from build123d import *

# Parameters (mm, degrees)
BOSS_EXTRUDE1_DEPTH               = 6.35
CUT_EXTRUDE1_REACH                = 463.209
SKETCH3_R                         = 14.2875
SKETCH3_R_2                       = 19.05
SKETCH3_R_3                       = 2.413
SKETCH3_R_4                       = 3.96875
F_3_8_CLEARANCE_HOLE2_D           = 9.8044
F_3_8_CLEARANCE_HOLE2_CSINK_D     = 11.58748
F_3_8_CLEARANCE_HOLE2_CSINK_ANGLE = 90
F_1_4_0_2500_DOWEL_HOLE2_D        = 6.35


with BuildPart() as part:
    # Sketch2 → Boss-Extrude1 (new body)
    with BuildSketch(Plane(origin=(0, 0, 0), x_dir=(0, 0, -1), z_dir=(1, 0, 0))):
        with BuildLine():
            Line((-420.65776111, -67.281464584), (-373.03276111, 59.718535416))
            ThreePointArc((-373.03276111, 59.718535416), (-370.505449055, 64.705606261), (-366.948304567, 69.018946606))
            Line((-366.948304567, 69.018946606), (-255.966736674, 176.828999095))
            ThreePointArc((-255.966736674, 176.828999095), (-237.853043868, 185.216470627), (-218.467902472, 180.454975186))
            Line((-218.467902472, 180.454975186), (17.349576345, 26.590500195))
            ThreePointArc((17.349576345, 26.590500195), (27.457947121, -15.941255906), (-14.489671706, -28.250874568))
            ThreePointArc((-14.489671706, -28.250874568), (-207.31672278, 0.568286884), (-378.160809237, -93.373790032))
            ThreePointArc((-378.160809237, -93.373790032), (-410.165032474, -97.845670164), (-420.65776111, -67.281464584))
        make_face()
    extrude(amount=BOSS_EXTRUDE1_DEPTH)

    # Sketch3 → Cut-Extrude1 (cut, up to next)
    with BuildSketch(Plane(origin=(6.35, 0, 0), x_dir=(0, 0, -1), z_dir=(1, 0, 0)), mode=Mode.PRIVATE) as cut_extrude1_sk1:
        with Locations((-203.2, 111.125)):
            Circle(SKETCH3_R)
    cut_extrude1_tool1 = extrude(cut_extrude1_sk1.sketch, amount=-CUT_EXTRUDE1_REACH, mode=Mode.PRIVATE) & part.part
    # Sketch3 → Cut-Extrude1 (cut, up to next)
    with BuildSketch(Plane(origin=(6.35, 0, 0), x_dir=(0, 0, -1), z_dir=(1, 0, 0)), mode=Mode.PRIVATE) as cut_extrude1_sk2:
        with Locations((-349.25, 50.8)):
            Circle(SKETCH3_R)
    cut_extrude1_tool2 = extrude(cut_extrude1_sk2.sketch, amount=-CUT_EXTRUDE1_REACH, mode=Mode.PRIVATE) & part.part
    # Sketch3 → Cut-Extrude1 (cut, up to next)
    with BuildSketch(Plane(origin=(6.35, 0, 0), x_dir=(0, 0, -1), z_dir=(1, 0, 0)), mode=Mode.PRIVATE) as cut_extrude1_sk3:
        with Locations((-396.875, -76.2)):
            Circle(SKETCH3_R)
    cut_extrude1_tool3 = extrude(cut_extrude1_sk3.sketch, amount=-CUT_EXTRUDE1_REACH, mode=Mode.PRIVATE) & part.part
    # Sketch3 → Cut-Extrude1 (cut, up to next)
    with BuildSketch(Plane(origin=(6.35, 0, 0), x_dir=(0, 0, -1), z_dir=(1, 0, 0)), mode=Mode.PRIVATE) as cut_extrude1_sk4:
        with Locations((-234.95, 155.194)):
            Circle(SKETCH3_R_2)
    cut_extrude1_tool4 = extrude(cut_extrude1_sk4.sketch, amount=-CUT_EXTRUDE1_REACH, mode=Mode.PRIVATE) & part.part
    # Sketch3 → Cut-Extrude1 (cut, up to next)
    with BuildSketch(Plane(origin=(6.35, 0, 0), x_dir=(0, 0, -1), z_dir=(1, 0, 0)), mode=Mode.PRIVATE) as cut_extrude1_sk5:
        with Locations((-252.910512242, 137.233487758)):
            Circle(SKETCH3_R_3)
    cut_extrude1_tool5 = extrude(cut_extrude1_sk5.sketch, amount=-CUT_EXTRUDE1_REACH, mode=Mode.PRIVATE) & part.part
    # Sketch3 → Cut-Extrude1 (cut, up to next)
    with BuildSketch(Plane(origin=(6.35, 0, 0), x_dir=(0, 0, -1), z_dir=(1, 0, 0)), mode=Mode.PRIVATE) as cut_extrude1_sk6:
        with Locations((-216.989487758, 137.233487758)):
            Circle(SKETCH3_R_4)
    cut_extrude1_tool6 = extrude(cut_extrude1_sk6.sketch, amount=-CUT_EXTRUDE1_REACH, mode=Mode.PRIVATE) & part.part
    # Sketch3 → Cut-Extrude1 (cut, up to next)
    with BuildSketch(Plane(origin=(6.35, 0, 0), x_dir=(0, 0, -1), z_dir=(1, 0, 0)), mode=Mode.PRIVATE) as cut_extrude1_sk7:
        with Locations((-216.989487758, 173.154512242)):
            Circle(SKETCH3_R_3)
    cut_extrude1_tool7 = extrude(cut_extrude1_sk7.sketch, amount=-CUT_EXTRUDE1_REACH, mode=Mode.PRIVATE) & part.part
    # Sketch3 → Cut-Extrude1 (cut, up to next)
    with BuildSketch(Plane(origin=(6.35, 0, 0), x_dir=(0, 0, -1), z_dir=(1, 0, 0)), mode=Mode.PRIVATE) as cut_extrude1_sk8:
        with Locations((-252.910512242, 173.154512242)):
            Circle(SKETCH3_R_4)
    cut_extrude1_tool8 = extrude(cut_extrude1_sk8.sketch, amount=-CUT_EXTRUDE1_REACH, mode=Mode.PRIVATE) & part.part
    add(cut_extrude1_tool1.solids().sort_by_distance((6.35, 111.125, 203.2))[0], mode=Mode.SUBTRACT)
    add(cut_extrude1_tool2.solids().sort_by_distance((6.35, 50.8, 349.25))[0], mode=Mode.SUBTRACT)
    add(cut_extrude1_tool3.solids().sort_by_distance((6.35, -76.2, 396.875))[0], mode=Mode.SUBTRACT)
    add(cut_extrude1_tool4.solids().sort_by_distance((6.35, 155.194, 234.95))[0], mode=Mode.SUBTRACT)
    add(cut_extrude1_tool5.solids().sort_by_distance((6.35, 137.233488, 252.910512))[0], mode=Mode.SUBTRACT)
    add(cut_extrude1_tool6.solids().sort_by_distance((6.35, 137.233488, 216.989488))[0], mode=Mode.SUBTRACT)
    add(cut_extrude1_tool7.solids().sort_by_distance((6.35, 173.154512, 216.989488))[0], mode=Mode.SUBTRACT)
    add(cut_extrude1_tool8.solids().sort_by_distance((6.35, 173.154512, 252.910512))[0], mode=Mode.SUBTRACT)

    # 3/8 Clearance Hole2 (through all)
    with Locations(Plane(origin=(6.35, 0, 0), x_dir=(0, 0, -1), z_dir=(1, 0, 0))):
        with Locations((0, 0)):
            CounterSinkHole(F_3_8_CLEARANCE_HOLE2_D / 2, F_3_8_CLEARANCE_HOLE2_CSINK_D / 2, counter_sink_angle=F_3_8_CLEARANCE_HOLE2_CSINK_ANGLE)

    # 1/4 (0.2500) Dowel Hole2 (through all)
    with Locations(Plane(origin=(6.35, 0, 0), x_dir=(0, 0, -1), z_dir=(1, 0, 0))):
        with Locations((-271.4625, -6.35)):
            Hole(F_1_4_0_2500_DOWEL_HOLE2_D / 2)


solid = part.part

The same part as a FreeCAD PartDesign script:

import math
import FreeCAD as App
import Part
import Sketcher
from FreeCAD import Vector
Q = App.Units.Quantity

doc = App.newDocument("Part")
params = doc.addObject("Spreadsheet::Sheet", "Params")
for row, (alias, value) in enumerate([
    ("sketch1_radius", "1 in"),
    ("sketch1_radius2", "12 in"),
    ("sketch1_radius3", "1.25 in"),
    ("sketch1_radius4", "1.1875 in"),
    ("pad1_length", "0.25 in"),
    ("sketch2_diameter", "1.125 in"),
    ("sketch3_diameter", "1.125 in"),
    ("sketch4_diameter", "1.125 in"),
    ("sketch5_diameter", "1.5 in"),
    ("sketch6_diameter", "0.19 in"),
    ("sketch7_diameter", "0.3125 in"),
    ("sketch8_diameter", "0.19 in"),
    ("sketch9_diameter", "0.3125 in"),
    ("sketch10_diameter", "0.386 in"),
    ("hole_diameter", "0.386 in"),
    ("hole_csink_diameter", "0.4562 in"),
    ("sketch11_diameter", "0.25 in"),
    ("hole2_diameter", "0.25 in"),
], start=1):
    params.set(f"A{row}", alias)
    params.set(f"B{row}", "=" + value)
    params.setAlias(f"B{row}", alias)

body = doc.addObject("PartDesign::Body", "Body")

# Sketch on YZ plane
sketch1 = body.newObject("Sketcher::SketchObject", "Sketch")
sketch1.AttachmentSupport = (doc.getObject("YZ_Plane"), [""])
sketch1.MapMode = "FlatFace"
sketch1.addGeometry([
    Part.LineSegment(Vector(60, 373, 0), Vector(-67, 421, 0)),  # 0
    Part.ArcOfCircle(Part.Circle(Vector(-76, 397, 0), Vector(0, 0, 1), 25), math.radians(69), math.radians(227)),  # 1
    Part.ArcOfCircle(Part.Circle(Vector(-299, 154, 0), Vector(0, 0, 1), 305), math.radians(-27), math.radians(47)),  # 2
    Part.ArcOfCircle(Part.Circle(Vector(0, 0, 0), Vector(0, 0, 1), 32), math.radians(153), math.radians(327)),  # 3
    Part.LineSegment(Vector(27, -17, 0), Vector(180, 218, 0)),  # 4
    Part.ArcOfCircle(Part.Circle(Vector(155, 235, 0), Vector(0, 0, 1), 30), math.radians(-33), math.radians(44)),  # 5
    Part.LineSegment(Vector(177, 256, 0), Vector(69, 367, 0)),  # 6
    Part.ArcOfCircle(Part.Circle(Vector(51, 349, 0), Vector(0, 0, 1), 25), math.radians(44), math.radians(69)),  # 7
], False)
sketch1.addConstraint([
    Sketcher.Constraint("Tangent", 0, 2, 1, 1),
    Sketcher.Constraint("Tangent", 1, 2, 2, 2),
    Sketcher.Constraint("Tangent", 2, 1, 3, 1),
    Sketcher.Constraint("Tangent", 3, 2, 4, 1),
    Sketcher.Constraint("Tangent", 4, 2, 5, 1),
    Sketcher.Constraint("Tangent", 5, 2, 6, 1),
    Sketcher.Constraint("Tangent", 6, 2, 7, 1),
    Sketcher.Constraint("Tangent", 7, 2, 0, 1),
    Sketcher.Constraint("Coincident", 3, 3, -1, 1),
    Sketcher.Constraint("Equal", 1, 7),
    Sketcher.Constraint("Radius", 1, Q("1 in")),
    Sketcher.Constraint("Radius", 2, Q("12 in")),
    Sketcher.Constraint("Radius", 3, Q("1.25 in")),
    Sketcher.Constraint("DistanceX", 1, 3, -1, 1, Q("3 in")),
    Sketcher.Constraint("DistanceX", -1, 1, 7, 3, Q("2 in")),
    Sketcher.Constraint("Radius", 5, Q("1.1875 in")),
    Sketcher.Constraint("DistanceY", 5, 3, 7, 3, Q("4.5 in")),
    Sketcher.Constraint("DistanceX", -1, 1, 5, 3, Q("6.11 in")),
    Sketcher.Constraint("DistanceY", -1, 1, 5, 3, Q("9.25 in")),
    Sketcher.Constraint("DistanceY", -1, 1, 1, 3, Q("15.625 in")),
])
sketch1.setExpression("Constraints[10]", "Params.sketch1_radius")
sketch1.setExpression("Constraints[11]", "Params.sketch1_radius2")
sketch1.setExpression("Constraints[12]", "Params.sketch1_radius3")
sketch1.setExpression("Constraints[15]", "Params.sketch1_radius4")
pad1 = body.newObject("PartDesign::Pad", "Pad")
pad1.Profile = sketch1
pad1.setExpression("Length", "Params.pad1_length")

# Sketch on YZ plane
sketch2 = body.newObject("Sketcher::SketchObject", "Sketch001")
sketch2.AttachmentSupport = (doc.getObject("YZ_Plane"), [""])
sketch2.MapMode = "FlatFace"
sketch2.AttachmentOffset = App.Placement(Vector(0, 0, 0.25 * 25.4), App.Rotation())
sketch2.addGeometry(Part.Circle(Vector(111, 203, 0), Vector(0, 0, 1), 14), False)
sketch2.addConstraint([
    Sketcher.Constraint("Diameter", 0, Q("1.125 in")),
    Sketcher.Constraint("DistanceY", -1, 1, 0, 3, Q("8 in")),
    Sketcher.Constraint("DistanceX", -1, 1, 0, 3, Q("4.375 in")),
])
sketch2.setExpression("Constraints[0]", "Params.sketch2_diameter")
pocket1 = body.newObject("PartDesign::Pocket", "Pocket")
pocket1.Profile = sketch2
pocket1.Type = "UpToFirst"

# Sketch on YZ plane
sketch3 = body.newObject("Sketcher::SketchObject", "Sketch002")
sketch3.AttachmentSupport = (doc.getObject("YZ_Plane"), [""])
sketch3.MapMode = "FlatFace"
sketch3.AttachmentOffset = App.Placement(Vector(0, 0, 0.25 * 25.4), App.Rotation())
sketch3.addGeometry(Part.Circle(Vector(51, 349, 0), Vector(0, 0, 1), 14), False)
sketch3.addConstraint([
    Sketcher.Constraint("Diameter", 0, Q("1.125 in")),
    Sketcher.Constraint("DistanceX", -1, 1, 0, 3, Q("2 in")),
    Sketcher.Constraint("DistanceY", -1, 1, 0, 3, Q("13.75 in")),
])
sketch3.setExpression("Constraints[0]", "Params.sketch3_diameter")
pocket2 = body.newObject("PartDesign::Pocket", "Pocket001")
pocket2.Profile = sketch3
pocket2.Type = "UpToFirst"

# Sketch on YZ plane
sketch4 = body.newObject("Sketcher::SketchObject", "Sketch003")
sketch4.AttachmentSupport = (doc.getObject("YZ_Plane"), [""])
sketch4.MapMode = "FlatFace"
sketch4.AttachmentOffset = App.Placement(Vector(0, 0, 0.25 * 25.4), App.Rotation())
sketch4.addGeometry(Part.Circle(Vector(-76, 397, 0), Vector(0, 0, 1), 14), False)
sketch4.addConstraint([
    Sketcher.Constraint("Diameter", 0, Q("1.125 in")),
    Sketcher.Constraint("DistanceX", 0, 3, -1, 1, Q("3 in")),
    Sketcher.Constraint("DistanceY", -1, 1, 0, 3, Q("15.625 in")),
])
sketch4.setExpression("Constraints[0]", "Params.sketch4_diameter")
pocket3 = body.newObject("PartDesign::Pocket", "Pocket002")
pocket3.Profile = sketch4
pocket3.Type = "UpToFirst"

# Sketch on YZ plane
sketch5 = body.newObject("Sketcher::SketchObject", "Sketch004")
sketch5.AttachmentSupport = (doc.getObject("YZ_Plane"), [""])
sketch5.MapMode = "FlatFace"
sketch5.AttachmentOffset = App.Placement(Vector(0, 0, 0.25 * 25.4), App.Rotation())
sketch5.addGeometry(Part.Circle(Vector(155, 235, 0), Vector(0, 0, 1), 19), False)
sketch5.addConstraint([
    Sketcher.Constraint("Diameter", 0, Q("1.5 in")),
    Sketcher.Constraint("DistanceX", -1, 1, 0, 3, Q("6.11 in")),
    Sketcher.Constraint("DistanceY", -1, 1, 0, 3, Q("9.25 in")),
])
sketch5.setExpression("Constraints[0]", "Params.sketch5_diameter")
pocket4 = body.newObject("PartDesign::Pocket", "Pocket003")
pocket4.Profile = sketch5
pocket4.Type = "UpToFirst"

# Sketch on YZ plane
sketch6 = body.newObject("Sketcher::SketchObject", "Sketch005")
sketch6.AttachmentSupport = (doc.getObject("YZ_Plane"), [""])
sketch6.MapMode = "FlatFace"
sketch6.AttachmentOffset = App.Placement(Vector(0, 0, 0.25 * 25.4), App.Rotation())
sketch6.addGeometry(Part.Circle(Vector(137.2, 252.9, 0), Vector(0, 0, 1), 2.4), False)
sketch6.addConstraint([
    Sketcher.Constraint("Diameter", 0, Q("0.19 in")),
    Sketcher.Constraint("DistanceX", -1, 1, 0, 3, Q("137.233488 mm")),
    Sketcher.Constraint("DistanceY", -1, 1, 0, 3, Q("252.910512 mm")),
])
sketch6.setExpression("Constraints[0]", "Params.sketch6_diameter")
pocket5 = body.newObject("PartDesign::Pocket", "Pocket004")
pocket5.Profile = sketch6
pocket5.Type = "UpToFirst"

# Sketch on YZ plane
sketch7 = body.newObject("Sketcher::SketchObject", "Sketch006")
sketch7.AttachmentSupport = (doc.getObject("YZ_Plane"), [""])
sketch7.MapMode = "FlatFace"
sketch7.AttachmentOffset = App.Placement(Vector(0, 0, 0.25 * 25.4), App.Rotation())
sketch7.addGeometry(Part.Circle(Vector(137.2, 217, 0), Vector(0, 0, 1), 4), False)
sketch7.addConstraint([
    Sketcher.Constraint("Diameter", 0, Q("0.3125 in")),
    Sketcher.Constraint("DistanceX", -1, 1, 0, 3, Q("137.233488 mm")),
    Sketcher.Constraint("DistanceY", -1, 1, 0, 3, Q("216.989488 mm")),
])
sketch7.setExpression("Constraints[0]", "Params.sketch7_diameter")
pocket6 = body.newObject("PartDesign::Pocket", "Pocket005")
pocket6.Profile = sketch7
pocket6.Type = "UpToFirst"

# Sketch on YZ plane
sketch8 = body.newObject("Sketcher::SketchObject", "Sketch007")
sketch8.AttachmentSupport = (doc.getObject("YZ_Plane"), [""])
sketch8.MapMode = "FlatFace"
sketch8.AttachmentOffset = App.Placement(Vector(0, 0, 0.25 * 25.4), App.Rotation())
sketch8.addGeometry(Part.Circle(Vector(173.2, 217, 0), Vector(0, 0, 1), 2.4), False)
sketch8.addConstraint([
    Sketcher.Constraint("Diameter", 0, Q("0.19 in")),
    Sketcher.Constraint("DistanceX", -1, 1, 0, 3, Q("173.154512 mm")),
    Sketcher.Constraint("DistanceY", -1, 1, 0, 3, Q("216.989488 mm")),
])
sketch8.setExpression("Constraints[0]", "Params.sketch8_diameter")
pocket7 = body.newObject("PartDesign::Pocket", "Pocket006")
pocket7.Profile = sketch8
pocket7.Type = "UpToFirst"

# Sketch on YZ plane
sketch9 = body.newObject("Sketcher::SketchObject", "Sketch008")
sketch9.AttachmentSupport = (doc.getObject("YZ_Plane"), [""])
sketch9.MapMode = "FlatFace"
sketch9.AttachmentOffset = App.Placement(Vector(0, 0, 0.25 * 25.4), App.Rotation())
sketch9.addGeometry(Part.Circle(Vector(173.2, 252.9, 0), Vector(0, 0, 1), 4), False)
sketch9.addConstraint([
    Sketcher.Constraint("Diameter", 0, Q("0.3125 in")),
    Sketcher.Constraint("DistanceX", -1, 1, 0, 3, Q("173.154512 mm")),
    Sketcher.Constraint("DistanceY", -1, 1, 0, 3, Q("252.910512 mm")),
])
sketch9.setExpression("Constraints[0]", "Params.sketch9_diameter")
pocket8 = body.newObject("PartDesign::Pocket", "Pocket007")
pocket8.Profile = sketch9
pocket8.Type = "UpToFirst"

# Sketch on YZ plane
sketch10 = body.newObject("Sketcher::SketchObject", "Sketch009")
sketch10.AttachmentSupport = (doc.getObject("YZ_Plane"), [""])
sketch10.MapMode = "FlatFace"
sketch10.AttachmentOffset = App.Placement(Vector(0, 0, 0.25 * 25.4), App.Rotation())
sketch10.addGeometry(Part.Circle(Vector(0, 0, 0), Vector(0, 0, 1), 4.9), False)
sketch10.addConstraint([
    Sketcher.Constraint("Coincident", 0, 3, -1, 1),
    Sketcher.Constraint("Diameter", 0, Q("0.386 in")),
])
sketch10.setExpression("Constraints[1]", "Params.sketch10_diameter")
doc.recompute()
hole = body.newObject("PartDesign::Hole", "Hole")
hole.Profile = sketch10
hole.ThreadType = "None"
hole.setExpression("Diameter", "Params.hole_diameter")
hole.DepthType = "ThroughAll"
hole.HoleCutType = "Countersink"
hole.setExpression("HoleCutDiameter", "Params.hole_csink_diameter")
hole.HoleCutCountersinkAngle = 90

# Sketch on YZ plane
sketch11 = body.newObject("Sketcher::SketchObject", "Sketch010")
sketch11.AttachmentSupport = (doc.getObject("YZ_Plane"), [""])
sketch11.MapMode = "FlatFace"
sketch11.AttachmentOffset = App.Placement(Vector(0, 0, 0.25 * 25.4), App.Rotation())
sketch11.addGeometry(Part.Circle(Vector(-6.3, 271.5, 0), Vector(0, 0, 1), 3.2), False)
sketch11.addConstraint([
    Sketcher.Constraint("Diameter", 0, Q("0.25 in")),
    Sketcher.Constraint("DistanceX", 0, 3, -1, 1, Q("0.25 in")),
    Sketcher.Constraint("DistanceY", -1, 1, 0, 3, Q("10.6875 in")),
])
sketch11.setExpression("Constraints[0]", "Params.sketch11_diameter")
doc.recompute()
hole2 = body.newObject("PartDesign::Hole", "Hole001")
hole2.Profile = sketch11
hole2.ThreadType = "None"
hole2.setExpression("Diameter", "Params.hole2_diameter")
hole2.DepthType = "ThroughAll"

doc.recompute()
